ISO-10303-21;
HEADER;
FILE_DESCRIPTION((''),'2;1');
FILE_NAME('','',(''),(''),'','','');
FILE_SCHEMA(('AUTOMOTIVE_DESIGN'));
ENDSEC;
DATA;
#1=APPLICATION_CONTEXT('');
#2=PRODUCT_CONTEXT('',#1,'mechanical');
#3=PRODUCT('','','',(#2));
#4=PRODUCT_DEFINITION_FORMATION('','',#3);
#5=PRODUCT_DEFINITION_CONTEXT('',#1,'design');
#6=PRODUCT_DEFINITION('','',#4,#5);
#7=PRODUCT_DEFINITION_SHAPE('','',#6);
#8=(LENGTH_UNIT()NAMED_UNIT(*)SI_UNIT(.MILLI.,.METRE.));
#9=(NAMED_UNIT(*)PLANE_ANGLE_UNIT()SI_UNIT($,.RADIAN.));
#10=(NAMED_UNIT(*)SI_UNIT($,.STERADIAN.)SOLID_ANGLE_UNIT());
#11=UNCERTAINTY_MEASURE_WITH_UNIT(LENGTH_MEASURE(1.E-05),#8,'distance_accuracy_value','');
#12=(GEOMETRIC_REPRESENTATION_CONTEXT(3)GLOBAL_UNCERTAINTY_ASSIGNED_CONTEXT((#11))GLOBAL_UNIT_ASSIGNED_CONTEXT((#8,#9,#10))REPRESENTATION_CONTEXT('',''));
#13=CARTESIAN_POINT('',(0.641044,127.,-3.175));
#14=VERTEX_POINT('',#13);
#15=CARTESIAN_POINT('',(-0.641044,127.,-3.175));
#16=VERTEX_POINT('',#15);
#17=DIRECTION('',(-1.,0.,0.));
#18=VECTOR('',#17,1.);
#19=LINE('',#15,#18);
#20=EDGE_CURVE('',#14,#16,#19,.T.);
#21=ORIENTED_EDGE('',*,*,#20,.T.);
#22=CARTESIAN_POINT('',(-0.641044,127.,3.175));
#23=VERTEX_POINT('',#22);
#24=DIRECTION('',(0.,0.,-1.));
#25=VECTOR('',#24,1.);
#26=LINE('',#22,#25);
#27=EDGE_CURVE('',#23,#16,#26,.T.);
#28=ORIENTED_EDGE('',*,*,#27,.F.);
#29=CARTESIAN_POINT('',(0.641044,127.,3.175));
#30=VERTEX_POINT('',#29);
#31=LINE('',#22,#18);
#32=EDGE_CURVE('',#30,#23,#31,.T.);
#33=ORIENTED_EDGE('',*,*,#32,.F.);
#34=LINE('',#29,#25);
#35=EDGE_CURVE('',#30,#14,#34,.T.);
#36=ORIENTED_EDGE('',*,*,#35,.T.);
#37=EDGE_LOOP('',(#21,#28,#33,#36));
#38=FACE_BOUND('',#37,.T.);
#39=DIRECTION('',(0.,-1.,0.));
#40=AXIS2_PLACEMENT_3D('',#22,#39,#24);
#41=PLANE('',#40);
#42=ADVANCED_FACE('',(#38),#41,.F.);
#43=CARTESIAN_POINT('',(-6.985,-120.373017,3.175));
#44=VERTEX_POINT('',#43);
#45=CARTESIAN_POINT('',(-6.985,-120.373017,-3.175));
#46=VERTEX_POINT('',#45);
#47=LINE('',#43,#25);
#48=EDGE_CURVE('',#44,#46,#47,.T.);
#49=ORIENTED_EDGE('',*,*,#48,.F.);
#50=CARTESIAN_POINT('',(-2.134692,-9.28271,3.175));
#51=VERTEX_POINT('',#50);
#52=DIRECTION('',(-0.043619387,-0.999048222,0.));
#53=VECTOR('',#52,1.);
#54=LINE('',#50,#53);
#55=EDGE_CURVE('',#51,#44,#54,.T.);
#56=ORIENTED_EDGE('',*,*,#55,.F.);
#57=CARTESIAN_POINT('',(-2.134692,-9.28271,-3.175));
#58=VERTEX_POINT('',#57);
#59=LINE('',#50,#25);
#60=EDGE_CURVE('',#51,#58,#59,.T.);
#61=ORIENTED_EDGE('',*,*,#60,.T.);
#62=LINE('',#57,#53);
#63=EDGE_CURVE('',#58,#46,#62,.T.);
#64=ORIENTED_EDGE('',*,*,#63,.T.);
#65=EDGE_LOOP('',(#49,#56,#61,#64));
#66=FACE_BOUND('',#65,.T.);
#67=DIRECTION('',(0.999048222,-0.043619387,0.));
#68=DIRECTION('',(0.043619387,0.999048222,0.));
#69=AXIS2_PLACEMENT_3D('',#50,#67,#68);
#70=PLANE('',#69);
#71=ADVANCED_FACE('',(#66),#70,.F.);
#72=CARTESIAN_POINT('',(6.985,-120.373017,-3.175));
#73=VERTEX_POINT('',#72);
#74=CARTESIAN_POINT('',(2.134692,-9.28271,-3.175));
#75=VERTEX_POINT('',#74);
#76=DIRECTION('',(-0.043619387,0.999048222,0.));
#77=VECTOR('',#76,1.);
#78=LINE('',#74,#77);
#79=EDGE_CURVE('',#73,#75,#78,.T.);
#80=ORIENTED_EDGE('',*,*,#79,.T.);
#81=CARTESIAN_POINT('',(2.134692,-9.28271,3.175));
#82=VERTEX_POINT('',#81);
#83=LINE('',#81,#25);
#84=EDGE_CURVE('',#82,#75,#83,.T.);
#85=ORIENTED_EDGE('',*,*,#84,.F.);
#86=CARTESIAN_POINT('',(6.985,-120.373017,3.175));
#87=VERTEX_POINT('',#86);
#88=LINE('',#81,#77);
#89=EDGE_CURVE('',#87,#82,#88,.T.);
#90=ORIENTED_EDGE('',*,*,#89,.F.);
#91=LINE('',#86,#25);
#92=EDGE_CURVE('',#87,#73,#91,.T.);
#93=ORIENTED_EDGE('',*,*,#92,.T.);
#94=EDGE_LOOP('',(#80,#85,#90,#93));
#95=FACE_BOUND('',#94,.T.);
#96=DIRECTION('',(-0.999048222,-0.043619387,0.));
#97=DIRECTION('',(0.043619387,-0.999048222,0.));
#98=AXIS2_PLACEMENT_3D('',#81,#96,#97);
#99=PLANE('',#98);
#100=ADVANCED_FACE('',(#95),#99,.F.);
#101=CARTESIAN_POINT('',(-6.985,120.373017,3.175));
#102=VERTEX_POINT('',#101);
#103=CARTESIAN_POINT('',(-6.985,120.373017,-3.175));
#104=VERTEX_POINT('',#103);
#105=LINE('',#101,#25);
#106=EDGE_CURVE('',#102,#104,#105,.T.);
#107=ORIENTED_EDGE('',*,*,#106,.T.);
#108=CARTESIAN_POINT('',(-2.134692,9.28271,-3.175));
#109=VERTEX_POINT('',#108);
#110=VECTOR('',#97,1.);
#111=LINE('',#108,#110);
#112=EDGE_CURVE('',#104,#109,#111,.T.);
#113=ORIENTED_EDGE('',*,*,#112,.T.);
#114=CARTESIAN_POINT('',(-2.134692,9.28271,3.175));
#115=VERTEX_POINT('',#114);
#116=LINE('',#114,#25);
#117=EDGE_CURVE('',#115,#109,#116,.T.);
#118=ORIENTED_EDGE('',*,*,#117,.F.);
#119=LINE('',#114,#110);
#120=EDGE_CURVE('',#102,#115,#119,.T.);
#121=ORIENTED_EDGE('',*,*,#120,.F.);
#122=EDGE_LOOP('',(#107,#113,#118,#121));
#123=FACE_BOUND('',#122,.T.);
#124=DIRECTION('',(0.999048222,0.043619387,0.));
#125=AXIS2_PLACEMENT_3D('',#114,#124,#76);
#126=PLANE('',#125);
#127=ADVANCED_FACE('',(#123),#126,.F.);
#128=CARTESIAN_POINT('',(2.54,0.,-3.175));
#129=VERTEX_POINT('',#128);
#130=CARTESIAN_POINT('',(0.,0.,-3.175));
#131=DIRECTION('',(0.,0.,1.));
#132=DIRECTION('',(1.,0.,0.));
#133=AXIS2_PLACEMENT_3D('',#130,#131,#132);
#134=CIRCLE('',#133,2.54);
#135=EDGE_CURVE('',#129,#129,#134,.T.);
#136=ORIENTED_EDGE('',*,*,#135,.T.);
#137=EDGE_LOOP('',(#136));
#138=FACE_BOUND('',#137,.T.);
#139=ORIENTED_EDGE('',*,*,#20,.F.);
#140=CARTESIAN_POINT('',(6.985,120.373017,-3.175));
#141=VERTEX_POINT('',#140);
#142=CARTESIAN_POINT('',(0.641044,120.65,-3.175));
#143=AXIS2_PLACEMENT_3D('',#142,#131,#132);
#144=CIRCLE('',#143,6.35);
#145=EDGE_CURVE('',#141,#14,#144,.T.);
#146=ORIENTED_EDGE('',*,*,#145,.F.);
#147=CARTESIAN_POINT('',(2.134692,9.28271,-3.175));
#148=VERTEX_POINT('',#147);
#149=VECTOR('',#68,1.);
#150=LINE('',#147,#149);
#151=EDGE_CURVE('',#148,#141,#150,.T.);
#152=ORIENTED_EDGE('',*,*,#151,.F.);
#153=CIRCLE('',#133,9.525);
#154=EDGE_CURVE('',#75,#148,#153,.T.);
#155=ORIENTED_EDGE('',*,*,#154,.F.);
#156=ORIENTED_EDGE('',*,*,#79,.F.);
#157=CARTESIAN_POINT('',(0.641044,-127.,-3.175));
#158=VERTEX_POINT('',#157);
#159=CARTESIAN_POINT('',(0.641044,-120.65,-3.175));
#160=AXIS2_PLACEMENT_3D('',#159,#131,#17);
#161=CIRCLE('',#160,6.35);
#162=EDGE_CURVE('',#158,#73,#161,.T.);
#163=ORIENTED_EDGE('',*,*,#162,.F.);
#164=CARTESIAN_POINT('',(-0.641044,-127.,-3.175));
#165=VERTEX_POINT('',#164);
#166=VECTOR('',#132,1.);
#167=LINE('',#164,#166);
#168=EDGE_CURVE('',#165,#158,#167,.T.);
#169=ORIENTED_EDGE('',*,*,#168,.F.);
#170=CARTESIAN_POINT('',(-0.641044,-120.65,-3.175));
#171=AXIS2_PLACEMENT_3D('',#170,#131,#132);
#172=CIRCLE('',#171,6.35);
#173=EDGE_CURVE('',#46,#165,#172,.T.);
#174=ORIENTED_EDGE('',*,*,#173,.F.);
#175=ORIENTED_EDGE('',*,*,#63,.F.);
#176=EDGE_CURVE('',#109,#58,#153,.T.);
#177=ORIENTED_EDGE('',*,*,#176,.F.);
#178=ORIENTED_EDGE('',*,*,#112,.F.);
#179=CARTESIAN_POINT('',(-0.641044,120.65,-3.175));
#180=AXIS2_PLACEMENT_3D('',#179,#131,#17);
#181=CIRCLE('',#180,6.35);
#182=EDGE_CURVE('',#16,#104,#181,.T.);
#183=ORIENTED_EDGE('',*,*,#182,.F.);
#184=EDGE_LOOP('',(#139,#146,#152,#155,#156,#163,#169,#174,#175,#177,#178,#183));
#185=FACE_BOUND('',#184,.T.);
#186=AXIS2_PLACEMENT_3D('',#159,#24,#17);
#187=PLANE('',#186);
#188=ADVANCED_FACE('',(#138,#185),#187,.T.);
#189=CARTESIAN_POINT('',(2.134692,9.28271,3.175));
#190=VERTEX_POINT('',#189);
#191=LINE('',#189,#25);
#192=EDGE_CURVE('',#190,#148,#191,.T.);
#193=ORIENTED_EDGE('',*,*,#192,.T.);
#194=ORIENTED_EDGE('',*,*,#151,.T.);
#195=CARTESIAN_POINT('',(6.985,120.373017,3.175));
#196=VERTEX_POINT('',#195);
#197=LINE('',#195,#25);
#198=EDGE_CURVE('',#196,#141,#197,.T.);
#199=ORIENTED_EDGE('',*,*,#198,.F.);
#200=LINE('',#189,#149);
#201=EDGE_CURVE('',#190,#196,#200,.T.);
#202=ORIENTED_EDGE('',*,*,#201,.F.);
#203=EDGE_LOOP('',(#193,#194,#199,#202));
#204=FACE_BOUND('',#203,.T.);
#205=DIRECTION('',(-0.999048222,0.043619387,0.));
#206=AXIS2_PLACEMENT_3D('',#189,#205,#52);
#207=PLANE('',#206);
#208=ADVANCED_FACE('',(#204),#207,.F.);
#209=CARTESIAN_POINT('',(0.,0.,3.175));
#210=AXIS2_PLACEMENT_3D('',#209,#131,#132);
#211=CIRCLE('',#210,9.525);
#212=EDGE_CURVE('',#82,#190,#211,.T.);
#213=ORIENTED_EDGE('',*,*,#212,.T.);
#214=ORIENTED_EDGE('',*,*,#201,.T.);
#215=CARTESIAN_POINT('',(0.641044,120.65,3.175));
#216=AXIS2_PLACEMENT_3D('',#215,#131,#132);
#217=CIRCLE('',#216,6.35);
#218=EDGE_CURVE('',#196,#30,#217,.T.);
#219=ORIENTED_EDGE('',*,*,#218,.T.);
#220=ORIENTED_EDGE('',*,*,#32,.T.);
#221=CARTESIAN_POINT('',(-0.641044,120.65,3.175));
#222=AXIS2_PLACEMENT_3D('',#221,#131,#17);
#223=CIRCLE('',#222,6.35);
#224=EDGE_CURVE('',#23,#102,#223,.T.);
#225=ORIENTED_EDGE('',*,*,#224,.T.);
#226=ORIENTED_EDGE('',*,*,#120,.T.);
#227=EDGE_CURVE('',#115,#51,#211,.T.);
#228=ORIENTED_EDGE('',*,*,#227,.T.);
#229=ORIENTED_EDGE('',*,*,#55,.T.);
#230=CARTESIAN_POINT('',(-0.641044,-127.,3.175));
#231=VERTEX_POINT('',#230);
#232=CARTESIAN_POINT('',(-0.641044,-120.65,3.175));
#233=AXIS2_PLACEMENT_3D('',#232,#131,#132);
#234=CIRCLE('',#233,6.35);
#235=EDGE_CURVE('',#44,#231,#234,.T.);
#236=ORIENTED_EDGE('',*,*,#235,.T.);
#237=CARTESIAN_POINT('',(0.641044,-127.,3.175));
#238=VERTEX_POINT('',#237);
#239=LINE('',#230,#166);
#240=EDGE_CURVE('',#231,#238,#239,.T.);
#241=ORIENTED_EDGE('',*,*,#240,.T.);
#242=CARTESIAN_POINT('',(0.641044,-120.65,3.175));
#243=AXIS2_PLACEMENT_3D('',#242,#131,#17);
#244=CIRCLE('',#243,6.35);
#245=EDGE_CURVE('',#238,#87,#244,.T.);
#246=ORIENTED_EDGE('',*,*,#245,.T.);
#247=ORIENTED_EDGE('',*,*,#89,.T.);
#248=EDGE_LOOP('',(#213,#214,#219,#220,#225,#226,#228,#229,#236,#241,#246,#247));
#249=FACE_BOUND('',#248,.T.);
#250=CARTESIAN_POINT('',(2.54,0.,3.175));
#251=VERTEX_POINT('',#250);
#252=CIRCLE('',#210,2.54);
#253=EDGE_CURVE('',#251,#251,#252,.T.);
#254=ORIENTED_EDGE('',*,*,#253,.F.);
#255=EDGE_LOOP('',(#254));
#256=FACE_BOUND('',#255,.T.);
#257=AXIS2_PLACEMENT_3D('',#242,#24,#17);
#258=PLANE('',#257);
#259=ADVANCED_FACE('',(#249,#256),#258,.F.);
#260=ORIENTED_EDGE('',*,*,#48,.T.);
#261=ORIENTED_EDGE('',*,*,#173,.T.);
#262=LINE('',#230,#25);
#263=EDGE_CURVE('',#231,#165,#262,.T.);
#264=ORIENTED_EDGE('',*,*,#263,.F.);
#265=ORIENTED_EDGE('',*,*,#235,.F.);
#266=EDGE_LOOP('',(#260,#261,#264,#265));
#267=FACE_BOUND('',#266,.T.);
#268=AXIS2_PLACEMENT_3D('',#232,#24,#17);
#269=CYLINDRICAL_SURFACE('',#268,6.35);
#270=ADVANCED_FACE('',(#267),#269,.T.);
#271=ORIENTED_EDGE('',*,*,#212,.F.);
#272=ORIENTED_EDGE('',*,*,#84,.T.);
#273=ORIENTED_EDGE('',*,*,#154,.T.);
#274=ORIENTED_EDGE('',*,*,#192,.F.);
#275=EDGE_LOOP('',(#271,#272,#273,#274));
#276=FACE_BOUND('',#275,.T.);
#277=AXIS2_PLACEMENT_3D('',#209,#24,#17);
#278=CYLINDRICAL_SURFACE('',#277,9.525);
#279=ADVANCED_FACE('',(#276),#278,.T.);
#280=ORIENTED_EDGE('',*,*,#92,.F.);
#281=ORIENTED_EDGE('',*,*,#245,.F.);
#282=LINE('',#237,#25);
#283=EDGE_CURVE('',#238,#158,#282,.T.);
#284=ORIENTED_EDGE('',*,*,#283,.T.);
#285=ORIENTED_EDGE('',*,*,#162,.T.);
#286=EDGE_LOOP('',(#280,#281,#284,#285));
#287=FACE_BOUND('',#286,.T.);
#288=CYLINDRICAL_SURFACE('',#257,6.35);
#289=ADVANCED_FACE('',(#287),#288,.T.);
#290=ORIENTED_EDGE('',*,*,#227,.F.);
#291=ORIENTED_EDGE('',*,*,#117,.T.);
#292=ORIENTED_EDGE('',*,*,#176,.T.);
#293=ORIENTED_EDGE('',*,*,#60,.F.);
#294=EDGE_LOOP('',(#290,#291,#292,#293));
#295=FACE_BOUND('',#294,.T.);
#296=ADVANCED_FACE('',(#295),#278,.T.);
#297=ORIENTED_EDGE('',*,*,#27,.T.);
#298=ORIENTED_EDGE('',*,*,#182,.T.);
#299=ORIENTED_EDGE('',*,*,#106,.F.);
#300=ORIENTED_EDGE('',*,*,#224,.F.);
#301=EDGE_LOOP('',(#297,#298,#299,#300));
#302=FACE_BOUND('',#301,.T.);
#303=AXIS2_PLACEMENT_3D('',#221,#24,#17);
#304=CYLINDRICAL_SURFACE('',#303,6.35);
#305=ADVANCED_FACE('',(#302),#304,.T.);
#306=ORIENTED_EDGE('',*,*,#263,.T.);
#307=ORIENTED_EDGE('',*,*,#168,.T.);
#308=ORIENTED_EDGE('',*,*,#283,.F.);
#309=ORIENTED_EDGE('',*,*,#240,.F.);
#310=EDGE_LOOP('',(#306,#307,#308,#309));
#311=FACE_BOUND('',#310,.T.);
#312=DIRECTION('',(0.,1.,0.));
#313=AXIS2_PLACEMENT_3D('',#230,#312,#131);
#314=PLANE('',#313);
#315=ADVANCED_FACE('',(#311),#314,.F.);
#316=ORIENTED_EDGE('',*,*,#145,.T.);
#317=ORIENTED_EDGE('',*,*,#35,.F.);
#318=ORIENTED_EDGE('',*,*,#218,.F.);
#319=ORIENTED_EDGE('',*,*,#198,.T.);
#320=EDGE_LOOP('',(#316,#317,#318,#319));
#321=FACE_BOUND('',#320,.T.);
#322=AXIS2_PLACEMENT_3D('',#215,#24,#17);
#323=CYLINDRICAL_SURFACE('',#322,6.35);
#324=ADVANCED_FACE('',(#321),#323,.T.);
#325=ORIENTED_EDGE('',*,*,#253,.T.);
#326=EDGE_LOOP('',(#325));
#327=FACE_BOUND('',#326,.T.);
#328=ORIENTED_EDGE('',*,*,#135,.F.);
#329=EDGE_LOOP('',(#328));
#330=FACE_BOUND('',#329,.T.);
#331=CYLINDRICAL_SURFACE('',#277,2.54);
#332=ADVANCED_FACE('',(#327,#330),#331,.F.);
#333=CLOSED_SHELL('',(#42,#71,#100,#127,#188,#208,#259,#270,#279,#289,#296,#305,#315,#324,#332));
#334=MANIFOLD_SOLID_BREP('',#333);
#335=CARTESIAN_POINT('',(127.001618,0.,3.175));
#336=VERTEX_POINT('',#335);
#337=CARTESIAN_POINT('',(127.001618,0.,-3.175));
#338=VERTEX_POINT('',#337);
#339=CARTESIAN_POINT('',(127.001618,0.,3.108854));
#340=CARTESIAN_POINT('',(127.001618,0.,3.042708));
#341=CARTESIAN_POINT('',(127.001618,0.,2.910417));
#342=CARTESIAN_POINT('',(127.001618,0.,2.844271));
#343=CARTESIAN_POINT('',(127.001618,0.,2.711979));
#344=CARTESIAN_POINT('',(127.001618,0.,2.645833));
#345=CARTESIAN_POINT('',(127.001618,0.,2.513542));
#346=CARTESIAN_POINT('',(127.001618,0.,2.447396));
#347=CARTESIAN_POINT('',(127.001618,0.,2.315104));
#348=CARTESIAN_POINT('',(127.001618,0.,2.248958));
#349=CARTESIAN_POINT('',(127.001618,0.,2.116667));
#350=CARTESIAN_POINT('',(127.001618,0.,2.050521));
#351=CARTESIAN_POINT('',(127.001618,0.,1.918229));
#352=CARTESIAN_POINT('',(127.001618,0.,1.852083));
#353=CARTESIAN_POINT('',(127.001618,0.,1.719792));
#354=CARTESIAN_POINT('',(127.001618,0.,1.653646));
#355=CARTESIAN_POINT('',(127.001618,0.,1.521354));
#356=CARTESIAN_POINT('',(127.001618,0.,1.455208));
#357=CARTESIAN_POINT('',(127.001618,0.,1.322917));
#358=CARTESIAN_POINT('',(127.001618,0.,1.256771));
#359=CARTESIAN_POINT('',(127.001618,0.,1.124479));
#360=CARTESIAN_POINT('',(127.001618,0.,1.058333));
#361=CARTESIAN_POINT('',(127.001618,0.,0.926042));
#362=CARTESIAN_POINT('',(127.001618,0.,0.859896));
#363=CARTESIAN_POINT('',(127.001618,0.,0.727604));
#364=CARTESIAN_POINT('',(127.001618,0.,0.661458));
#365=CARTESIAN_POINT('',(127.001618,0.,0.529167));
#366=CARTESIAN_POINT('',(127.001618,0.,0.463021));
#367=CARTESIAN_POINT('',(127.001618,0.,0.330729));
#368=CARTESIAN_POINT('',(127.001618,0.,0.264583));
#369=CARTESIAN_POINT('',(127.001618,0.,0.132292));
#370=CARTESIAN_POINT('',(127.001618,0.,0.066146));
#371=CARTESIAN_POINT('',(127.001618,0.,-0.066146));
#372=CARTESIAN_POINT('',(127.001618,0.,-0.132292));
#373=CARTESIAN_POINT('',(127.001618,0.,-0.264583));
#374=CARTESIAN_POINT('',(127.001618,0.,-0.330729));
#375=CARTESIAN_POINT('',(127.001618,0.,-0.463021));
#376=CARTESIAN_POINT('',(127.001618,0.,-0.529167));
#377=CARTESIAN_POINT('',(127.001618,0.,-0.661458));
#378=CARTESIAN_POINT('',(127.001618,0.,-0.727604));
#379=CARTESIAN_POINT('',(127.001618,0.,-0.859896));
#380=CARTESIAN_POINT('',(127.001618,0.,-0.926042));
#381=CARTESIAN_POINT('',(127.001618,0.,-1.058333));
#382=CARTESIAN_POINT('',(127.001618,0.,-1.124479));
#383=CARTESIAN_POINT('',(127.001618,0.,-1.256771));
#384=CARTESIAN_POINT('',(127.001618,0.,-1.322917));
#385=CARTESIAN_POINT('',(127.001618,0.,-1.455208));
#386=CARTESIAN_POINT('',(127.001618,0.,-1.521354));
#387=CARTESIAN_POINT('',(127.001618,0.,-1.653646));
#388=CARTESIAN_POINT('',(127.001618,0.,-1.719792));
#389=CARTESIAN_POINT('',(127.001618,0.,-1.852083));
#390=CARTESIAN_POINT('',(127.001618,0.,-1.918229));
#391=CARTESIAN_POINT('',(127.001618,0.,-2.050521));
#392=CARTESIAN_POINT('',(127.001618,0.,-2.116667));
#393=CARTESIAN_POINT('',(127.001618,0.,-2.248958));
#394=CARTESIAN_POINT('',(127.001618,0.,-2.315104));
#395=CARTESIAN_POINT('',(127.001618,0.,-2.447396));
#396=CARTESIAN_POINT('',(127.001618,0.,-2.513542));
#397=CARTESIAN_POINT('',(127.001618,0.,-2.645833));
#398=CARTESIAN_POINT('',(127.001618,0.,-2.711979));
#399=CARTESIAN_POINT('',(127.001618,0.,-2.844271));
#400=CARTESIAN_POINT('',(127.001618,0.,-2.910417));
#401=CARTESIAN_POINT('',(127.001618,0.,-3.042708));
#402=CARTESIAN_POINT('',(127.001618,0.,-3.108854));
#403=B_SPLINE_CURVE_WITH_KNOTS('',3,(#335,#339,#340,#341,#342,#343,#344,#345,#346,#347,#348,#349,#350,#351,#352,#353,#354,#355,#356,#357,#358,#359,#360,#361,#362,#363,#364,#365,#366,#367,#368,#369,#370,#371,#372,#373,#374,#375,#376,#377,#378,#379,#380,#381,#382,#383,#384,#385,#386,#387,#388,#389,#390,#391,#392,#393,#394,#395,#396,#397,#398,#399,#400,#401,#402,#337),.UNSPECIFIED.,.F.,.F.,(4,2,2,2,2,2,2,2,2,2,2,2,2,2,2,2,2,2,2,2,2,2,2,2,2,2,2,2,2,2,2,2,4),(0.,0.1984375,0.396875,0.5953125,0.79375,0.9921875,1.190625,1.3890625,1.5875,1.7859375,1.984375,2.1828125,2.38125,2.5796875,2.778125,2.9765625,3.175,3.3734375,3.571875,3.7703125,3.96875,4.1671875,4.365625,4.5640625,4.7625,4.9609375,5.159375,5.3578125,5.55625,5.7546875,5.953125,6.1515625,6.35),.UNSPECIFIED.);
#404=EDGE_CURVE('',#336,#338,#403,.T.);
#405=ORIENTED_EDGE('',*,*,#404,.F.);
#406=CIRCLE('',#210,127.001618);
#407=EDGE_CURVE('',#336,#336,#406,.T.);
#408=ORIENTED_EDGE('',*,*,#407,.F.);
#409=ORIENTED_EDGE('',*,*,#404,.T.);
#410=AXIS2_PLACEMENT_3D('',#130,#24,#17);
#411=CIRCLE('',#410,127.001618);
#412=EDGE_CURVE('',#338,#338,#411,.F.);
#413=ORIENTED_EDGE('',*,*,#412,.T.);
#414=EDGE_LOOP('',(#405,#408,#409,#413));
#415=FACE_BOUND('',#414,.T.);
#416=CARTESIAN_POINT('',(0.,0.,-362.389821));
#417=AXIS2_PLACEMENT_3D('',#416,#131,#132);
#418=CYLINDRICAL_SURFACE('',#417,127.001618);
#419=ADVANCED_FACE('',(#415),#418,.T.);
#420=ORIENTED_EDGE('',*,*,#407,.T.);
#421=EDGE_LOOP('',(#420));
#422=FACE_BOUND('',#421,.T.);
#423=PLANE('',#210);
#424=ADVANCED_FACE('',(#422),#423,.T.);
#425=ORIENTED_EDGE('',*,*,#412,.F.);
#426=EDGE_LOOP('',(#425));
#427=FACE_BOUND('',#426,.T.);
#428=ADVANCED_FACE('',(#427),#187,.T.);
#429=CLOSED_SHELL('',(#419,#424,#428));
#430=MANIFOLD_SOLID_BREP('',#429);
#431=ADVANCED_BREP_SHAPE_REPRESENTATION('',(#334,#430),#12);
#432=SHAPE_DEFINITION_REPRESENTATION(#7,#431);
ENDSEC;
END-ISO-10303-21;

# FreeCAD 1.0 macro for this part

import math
import FreeCAD as App
import Part
import Sketcher
from FreeCAD import Vector
Q = App.Units.Quantity

doc = App.newDocument("Part")
body = doc.addObject("PartDesign::Body", "Body")

sketch1 = body.newObject("Sketcher::SketchObject", "Sketch")
sketch1.AttachmentSupport = (doc.getObject("XY_Plane"), [""])
sketch1.MapMode = "FlatFace"
sketch1.addGeometry(Part.LineSegment(Vector(-2.1, -9.3, 0), Vector(-7, -120.4, 0)), False)
sketch1.addGeometry(Part.ArcOfCircle(Part.Circle(Vector(-0.6, -120.7, 0), Vector(0, 0, 1), 6.3), math.radians(177), math.radians(270)), False)
sketch1.addGeometry(Part.LineSegment(Vector(-0.6, -127, 0), Vector(0.6, -127, 0)), False)
sketch1.addGeometry(Part.ArcOfCircle(Part.Circle(Vector(0.6, -120.7, 0), Vector(0, 0, 1), 6.3), math.radians(-90), math.radians(3)), False)
sketch1.addGeometry(Part.LineSegment(Vector(7, -120.4, 0), Vector(2.1, -9.3, 0)), False)
sketch1.addGeometry(Part.ArcOfCircle(Part.Circle(Vector(0, 0, 0), Vector(0, 0, 1), 9.5), math.radians(-77), math.radians(77)), False)
sketch1.addGeometry(Part.LineSegment(Vector(2.1, 9.3, 0), Vector(7, 120.4, 0)), False)
sketch1.addGeometry(Part.ArcOfCircle(Part.Circle(Vector(0.6, 120.7, 0), Vector(0, 0, 1), 6.3), math.radians(-3), math.radians(90)), False)
sketch1.addGeometry(Part.LineSegment(Vector(0.6, 127, 0), Vector(-0.6, 127, 0)), False)
sketch1.addGeometry(Part.ArcOfCircle(Part.Circle(Vector(-0.6, 120.7, 0), Vector(0, 0, 1), 6.3), math.radians(90), math.radians(183)), False)
sketch1.addGeometry(Part.LineSegment(Vector(-7, 120.4, 0), Vector(-2.1, 9.3, 0)), False)
sketch1.addGeometry(Part.ArcOfCircle(Part.Circle(Vector(0, 0, 0), Vector(0, 0, 1), 9.5), math.radians(103), math.radians(257)), False)
sketch1.addGeometry(Part.Circle(Vector(0, 0, 0), Vector(0, 0, 1), 2.5), False)
sketch1.addConstraint(Sketcher.Constraint("Tangent", 0, 2, 1, 1))
sketch1.addConstraint(Sketcher.Constraint("Tangent", 1, 2, 2, 1))
sketch1.addConstraint(Sketcher.Constraint("Tangent", 2, 2, 3, 1))
sketch1.addConstraint(Sketcher.Constraint("Tangent", 3, 2, 4, 1))
sketch1.addConstraint(Sketcher.Constraint("Coincident", 4, 2, 5, 1))
sketch1.addConstraint(Sketcher.Constraint("Coincident", 5, 2, 6, 1))
sketch1.addConstraint(Sketcher.Constraint("Tangent", 6, 2, 7, 1))
sketch1.addConstraint(Sketcher.Constraint("Tangent", 7, 2, 8, 1))
sketch1.addConstraint(Sketcher.Constraint("Tangent", 8, 2, 9, 1))
sketch1.addConstraint(Sketcher.Constraint("Tangent", 9, 2, 10, 1))
sketch1.addConstraint(Sketcher.Constraint("Coincident", 10, 2, 11, 1))
sketch1.addConstraint(Sketcher.Constraint("Coincident", 11, 2, 0, 1))
sketch1.addConstraint(Sketcher.Constraint("Horizontal", 2))
sketch1.addConstraint(Sketcher.Constraint("Horizontal", 8))
sketch1.addConstraint(Sketcher.Constraint("Coincident", 5, 3, -1, 1))
sketch1.addConstraint(Sketcher.Constraint("Coincident", 11, 3, -1, 1))
sketch1.addConstraint(Sketcher.Constraint("Coincident", 12, 3, -1, 1))
sketch1.addConstraint(Sketcher.Constraint("Equal", 1, 3))
sketch1.addConstraint(Sketcher.Constraint("Equal", 3, 7))
sketch1.addConstraint(Sketcher.Constraint("Equal", 7, 9))
sketch1.addConstraint(Sketcher.Constraint("Equal", 5, 11))
sketch1.addConstraint(Sketcher.Constraint("Symmetric", 1, 3, 7, 3, -1, 1))
sketch1.addConstraint(Sketcher.Constraint("Symmetric", 3, 2, 9, 2, -1, 1))
sketch1.addConstraint(Sketcher.Constraint("Symmetric", 0, 2, 3, 2, -2))
sketch1.addConstraint(Sketcher.Constraint("Parallel", 0, 6))
sketch1.addConstraint(Sketcher.Constraint("Diameter", 12, Q("0.2 in")))
sketch1.addConstraint(Sketcher.Constraint("Radius", 1, Q("0.25 in")))
sketch1.addConstraint(Sketcher.Constraint("DistanceY", 1, 2, -1, 1, Q("5 in")))
sketch1.addConstraint(Sketcher.Constraint("Radius", 5, Q("0.375 in")))
sketch1.addConstraint(Sketcher.Constraint("Angle", 0, Q("-92.5 deg")))
sketch1.addConstraint(Sketcher.Constraint("DistanceX", 0, 2, 3, 2, Q("0.55 in")))
pad1 = body.newObject("PartDesign::Pad", "Pad")
pad1.Profile = sketch1
pad1.Length = Q("0.25 in")
pad1.Midplane = True
body2 = doc.addObject("PartDesign::Body", "Body001")

sketch2 = body2.newObject("Sketcher::SketchObject", "Sketch001")
sketch2.AttachmentSupport = (doc.getObject("XY_Plane001"), [""])
sketch2.MapMode = "FlatFace"
sketch2.AttachmentOffset = App.Placement(Vector(0, 0, 0.125 * 25.4), App.Rotation())
sketch2.addGeometry(Part.Circle(Vector(0, 0, 0), Vector(0, 0, 1), 127), False)
sketch2.addConstraint(Sketcher.Constraint("Coincident", 0, 3, -1, 1))
sketch2.addConstraint(Sketcher.Constraint("Diameter", 0, 254.003236))
pad2 = body2.newObject("PartDesign::Pad", "Pad001")
pad2.Profile = sketch2
pad2.Length = Q("0.25 in")
pad2.Reversed = True

doc.recompute()
